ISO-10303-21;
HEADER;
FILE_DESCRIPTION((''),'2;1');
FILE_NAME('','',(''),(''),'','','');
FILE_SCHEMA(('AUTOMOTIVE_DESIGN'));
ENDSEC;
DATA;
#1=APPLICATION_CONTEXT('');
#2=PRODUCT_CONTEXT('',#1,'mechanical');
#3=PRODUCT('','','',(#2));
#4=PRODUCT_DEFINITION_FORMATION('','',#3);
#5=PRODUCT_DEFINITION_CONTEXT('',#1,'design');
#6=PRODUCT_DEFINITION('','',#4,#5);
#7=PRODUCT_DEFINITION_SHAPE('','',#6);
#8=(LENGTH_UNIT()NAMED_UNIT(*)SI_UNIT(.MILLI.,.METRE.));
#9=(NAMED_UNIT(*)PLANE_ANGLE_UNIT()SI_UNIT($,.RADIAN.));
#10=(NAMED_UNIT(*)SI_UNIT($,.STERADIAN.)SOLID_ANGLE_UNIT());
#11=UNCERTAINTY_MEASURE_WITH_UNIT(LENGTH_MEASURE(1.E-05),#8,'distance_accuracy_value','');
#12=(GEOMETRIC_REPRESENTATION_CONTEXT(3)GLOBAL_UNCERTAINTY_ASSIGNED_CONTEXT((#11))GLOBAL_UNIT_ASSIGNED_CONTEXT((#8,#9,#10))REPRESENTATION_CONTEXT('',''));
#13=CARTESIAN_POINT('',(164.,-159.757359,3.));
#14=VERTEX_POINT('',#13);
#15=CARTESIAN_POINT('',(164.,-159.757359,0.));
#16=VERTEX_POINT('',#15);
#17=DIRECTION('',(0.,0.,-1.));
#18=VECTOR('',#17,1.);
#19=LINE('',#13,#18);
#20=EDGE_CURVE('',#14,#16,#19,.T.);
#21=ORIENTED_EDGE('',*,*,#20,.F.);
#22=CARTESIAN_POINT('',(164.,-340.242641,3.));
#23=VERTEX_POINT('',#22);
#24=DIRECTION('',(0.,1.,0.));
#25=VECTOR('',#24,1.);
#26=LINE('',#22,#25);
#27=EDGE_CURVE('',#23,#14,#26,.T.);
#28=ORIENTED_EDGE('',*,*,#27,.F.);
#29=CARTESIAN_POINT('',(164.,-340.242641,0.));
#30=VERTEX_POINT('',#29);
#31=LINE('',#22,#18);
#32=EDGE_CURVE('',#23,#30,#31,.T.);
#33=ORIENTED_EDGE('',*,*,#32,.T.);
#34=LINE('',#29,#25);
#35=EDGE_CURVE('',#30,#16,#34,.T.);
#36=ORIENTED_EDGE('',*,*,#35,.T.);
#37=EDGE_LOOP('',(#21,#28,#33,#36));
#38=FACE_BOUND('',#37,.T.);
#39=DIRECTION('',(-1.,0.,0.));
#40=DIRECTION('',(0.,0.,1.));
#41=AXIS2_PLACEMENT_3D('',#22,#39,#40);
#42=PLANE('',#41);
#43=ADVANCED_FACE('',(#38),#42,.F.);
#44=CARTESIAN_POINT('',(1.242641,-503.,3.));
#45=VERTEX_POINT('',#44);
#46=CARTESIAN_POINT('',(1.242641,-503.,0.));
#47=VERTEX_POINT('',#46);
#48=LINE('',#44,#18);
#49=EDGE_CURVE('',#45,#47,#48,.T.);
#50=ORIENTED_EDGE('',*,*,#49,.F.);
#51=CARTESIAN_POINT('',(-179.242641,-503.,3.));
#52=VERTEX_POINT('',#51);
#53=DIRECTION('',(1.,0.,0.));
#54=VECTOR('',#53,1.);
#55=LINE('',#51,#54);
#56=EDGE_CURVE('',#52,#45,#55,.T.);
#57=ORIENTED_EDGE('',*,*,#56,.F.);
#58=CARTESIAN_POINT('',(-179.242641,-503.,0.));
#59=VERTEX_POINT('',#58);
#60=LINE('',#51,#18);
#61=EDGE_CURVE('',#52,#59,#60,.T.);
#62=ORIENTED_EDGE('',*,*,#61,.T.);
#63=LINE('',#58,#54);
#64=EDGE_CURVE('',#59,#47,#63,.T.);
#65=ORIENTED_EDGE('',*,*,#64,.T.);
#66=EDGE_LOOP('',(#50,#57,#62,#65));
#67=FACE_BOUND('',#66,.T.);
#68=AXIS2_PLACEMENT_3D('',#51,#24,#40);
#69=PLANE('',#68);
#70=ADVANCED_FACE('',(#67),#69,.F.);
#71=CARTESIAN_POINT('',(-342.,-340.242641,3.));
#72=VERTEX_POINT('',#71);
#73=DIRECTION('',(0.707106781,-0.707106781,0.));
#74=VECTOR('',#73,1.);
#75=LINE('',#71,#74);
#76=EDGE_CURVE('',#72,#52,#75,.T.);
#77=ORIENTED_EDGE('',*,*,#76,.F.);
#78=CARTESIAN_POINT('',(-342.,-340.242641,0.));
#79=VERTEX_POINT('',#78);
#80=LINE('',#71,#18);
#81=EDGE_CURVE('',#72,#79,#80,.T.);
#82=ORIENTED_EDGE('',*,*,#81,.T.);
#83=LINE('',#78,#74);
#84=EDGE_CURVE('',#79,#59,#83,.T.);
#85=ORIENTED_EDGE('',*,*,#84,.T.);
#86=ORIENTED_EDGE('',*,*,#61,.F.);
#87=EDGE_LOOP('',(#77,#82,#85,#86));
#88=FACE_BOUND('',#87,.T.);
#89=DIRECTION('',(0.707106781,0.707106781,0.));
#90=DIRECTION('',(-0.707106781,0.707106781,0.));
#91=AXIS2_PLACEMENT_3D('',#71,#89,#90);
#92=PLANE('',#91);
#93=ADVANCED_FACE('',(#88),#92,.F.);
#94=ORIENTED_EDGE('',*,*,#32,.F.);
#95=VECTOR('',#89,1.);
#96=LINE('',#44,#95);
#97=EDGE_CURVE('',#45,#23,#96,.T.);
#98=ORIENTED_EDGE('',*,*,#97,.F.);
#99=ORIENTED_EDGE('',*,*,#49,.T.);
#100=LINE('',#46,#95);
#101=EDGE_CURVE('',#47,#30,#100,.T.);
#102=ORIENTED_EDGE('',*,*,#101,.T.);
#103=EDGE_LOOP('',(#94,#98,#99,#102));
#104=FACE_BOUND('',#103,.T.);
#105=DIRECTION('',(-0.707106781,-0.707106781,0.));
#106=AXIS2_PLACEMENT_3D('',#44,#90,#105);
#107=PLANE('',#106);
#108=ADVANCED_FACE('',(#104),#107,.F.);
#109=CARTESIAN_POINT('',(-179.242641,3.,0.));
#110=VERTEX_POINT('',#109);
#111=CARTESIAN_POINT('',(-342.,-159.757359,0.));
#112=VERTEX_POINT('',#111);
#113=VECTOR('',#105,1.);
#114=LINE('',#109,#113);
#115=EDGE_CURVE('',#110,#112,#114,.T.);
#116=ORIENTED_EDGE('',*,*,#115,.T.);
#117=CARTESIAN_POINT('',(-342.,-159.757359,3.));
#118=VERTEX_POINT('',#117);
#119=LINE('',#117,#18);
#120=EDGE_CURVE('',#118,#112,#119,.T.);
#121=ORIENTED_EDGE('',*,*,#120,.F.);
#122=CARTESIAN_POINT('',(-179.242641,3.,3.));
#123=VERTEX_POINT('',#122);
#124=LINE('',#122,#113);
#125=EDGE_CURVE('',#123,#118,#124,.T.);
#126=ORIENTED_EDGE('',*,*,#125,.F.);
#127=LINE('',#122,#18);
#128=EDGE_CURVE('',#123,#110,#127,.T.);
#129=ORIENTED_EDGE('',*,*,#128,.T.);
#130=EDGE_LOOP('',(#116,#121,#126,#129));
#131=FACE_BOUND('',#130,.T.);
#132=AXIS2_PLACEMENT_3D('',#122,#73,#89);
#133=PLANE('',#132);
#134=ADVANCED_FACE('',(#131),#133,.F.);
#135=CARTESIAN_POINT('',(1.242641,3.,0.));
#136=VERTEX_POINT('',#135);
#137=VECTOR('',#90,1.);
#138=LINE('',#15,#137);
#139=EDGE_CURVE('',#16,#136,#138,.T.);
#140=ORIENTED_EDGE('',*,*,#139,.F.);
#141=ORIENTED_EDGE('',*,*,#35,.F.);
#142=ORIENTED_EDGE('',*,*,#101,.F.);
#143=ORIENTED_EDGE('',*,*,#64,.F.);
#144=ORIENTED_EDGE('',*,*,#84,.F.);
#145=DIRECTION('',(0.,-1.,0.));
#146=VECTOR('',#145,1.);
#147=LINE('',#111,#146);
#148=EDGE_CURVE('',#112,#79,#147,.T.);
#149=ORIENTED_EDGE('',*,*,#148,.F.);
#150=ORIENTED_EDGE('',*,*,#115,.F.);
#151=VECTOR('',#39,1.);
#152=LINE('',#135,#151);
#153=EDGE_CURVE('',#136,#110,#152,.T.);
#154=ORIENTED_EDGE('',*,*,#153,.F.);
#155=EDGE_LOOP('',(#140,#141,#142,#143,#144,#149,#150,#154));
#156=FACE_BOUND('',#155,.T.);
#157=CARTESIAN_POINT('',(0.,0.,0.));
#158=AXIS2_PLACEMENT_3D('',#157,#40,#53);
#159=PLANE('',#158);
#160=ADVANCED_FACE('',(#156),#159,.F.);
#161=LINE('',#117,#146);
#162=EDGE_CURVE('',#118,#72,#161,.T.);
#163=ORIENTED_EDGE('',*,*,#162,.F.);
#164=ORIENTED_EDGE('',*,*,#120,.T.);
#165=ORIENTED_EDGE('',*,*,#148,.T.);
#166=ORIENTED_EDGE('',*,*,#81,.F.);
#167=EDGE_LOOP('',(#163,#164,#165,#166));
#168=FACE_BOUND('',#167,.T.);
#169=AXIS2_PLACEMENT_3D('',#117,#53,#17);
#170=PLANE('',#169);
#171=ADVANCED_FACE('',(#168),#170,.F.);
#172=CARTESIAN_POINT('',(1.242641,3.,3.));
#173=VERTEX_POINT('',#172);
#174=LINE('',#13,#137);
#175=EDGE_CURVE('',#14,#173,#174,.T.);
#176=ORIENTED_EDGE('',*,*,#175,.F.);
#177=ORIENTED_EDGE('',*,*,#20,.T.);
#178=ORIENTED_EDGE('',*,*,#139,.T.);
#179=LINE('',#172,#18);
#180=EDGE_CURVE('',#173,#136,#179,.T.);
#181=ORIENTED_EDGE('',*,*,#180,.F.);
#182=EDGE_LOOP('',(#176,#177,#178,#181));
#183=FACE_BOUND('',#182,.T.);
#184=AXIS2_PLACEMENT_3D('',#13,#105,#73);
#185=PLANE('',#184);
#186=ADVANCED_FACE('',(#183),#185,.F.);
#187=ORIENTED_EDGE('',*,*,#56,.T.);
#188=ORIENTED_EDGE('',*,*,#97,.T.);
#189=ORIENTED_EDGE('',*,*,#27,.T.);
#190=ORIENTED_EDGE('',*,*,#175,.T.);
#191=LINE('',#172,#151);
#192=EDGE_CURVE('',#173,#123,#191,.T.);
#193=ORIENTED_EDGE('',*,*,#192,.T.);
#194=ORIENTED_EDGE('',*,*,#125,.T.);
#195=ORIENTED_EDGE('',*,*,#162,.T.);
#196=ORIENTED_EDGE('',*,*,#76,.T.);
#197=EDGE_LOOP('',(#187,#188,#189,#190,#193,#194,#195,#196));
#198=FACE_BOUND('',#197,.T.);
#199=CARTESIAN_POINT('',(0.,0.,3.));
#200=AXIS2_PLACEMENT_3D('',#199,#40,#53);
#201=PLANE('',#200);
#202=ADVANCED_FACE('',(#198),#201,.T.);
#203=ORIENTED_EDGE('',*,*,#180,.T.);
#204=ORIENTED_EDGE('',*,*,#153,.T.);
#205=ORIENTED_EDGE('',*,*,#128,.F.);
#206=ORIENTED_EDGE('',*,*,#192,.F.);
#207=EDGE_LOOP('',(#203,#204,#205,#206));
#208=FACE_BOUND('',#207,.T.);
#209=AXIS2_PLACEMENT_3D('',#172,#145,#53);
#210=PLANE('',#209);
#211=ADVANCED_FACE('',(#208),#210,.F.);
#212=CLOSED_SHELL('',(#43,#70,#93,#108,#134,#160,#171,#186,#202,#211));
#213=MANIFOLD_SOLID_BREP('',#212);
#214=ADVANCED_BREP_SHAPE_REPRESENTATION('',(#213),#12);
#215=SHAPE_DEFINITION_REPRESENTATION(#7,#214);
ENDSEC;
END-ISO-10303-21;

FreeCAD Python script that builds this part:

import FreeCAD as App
import Part
import Sketcher
Q = App.Units.Quantity


def add_polygon(sketch, points):
    """Adds a closed chain of lines whose ends are joined by coincident constraints."""
    first, n = sketch.GeometryCount, len(points)
    for a, b in zip(points, points[1:] + points[:1]):
        sketch.addGeometry(Part.LineSegment(App.Vector(*a, 0), App.Vector(*b, 0)), False)
    for i in range(n):
        sketch.addConstraint(Sketcher.Constraint("Coincident", first + i, 2, first + (i + 1) % n, 1))

doc = App.newDocument("Part")
params = doc.addObject("Spreadsheet::Sheet", "Params")
for row, (alias, value) in enumerate([
    ("pad1_length", "3 mm"),
], start=1):
    params.set(f"A{row}", alias)
    params.set(f"B{row}", "=" + value)
    params.setAlias(f"B{row}", alias)

body = doc.addObject("PartDesign::Body", "Body")

# Sketch on XY plane
sketch1 = doc.addObject("Sketcher::SketchObject", "Sketch")
body.addObject(sketch1)
sketch1.AttachmentSupport = (doc.XY_Plane, [""])
sketch1.MapMode = "FlatFace"
add_polygon(sketch1, [(164, -159.757359), (1.242641, 3), (-179.242641, 3), (-342, -159.757359), (-342, -340.242641), (-179.242641, -503), (1.242641, -503), (164, -340.242641)])  # lines 0-7
sketch1.addConstraint([
    Sketcher.Constraint("Horizontal", 1),
    Sketcher.Constraint("Vertical", 3),
    Sketcher.Constraint("Horizontal", 5),
    Sketcher.Constraint("Vertical", 7),
    Sketcher.Constraint("Perpendicular", 0, 2),
    Sketcher.Constraint("Perpendicular", 2, 4),
    Sketcher.Constraint("Perpendicular", 4, 6),
    Sketcher.Constraint("Horizontal", 3, 2, 6, 2),
    Sketcher.Constraint("Horizontal", 2, 2, 7, 2),
    Sketcher.Constraint("Vertical", 1, 2, 4, 2),
    Sketcher.Constraint("Vertical", 0, 2, 5, 2),
    Sketcher.Constraint("Equal", 5, 3),
    Sketcher.Constraint("DistanceY", -1, 1, 0, 2, Q("3 mm")),
    Sketcher.Constraint("DistanceX", 2, 2, -1, 1, Q("342 mm")),
    Sketcher.Constraint("DistanceY", 4, 2, -1, 1, Q("503 mm")),
    Sketcher.Constraint("DistanceX", 1, 2, 1, 1, Q("180.485281 mm")),
])
pad1 = doc.addObject("PartDesign::Pad", "Pad")
body.addObject(pad1)
pad1.Profile = sketch1
pad1.setExpression("Length", "Params.pad1_length")

doc.recompute()
